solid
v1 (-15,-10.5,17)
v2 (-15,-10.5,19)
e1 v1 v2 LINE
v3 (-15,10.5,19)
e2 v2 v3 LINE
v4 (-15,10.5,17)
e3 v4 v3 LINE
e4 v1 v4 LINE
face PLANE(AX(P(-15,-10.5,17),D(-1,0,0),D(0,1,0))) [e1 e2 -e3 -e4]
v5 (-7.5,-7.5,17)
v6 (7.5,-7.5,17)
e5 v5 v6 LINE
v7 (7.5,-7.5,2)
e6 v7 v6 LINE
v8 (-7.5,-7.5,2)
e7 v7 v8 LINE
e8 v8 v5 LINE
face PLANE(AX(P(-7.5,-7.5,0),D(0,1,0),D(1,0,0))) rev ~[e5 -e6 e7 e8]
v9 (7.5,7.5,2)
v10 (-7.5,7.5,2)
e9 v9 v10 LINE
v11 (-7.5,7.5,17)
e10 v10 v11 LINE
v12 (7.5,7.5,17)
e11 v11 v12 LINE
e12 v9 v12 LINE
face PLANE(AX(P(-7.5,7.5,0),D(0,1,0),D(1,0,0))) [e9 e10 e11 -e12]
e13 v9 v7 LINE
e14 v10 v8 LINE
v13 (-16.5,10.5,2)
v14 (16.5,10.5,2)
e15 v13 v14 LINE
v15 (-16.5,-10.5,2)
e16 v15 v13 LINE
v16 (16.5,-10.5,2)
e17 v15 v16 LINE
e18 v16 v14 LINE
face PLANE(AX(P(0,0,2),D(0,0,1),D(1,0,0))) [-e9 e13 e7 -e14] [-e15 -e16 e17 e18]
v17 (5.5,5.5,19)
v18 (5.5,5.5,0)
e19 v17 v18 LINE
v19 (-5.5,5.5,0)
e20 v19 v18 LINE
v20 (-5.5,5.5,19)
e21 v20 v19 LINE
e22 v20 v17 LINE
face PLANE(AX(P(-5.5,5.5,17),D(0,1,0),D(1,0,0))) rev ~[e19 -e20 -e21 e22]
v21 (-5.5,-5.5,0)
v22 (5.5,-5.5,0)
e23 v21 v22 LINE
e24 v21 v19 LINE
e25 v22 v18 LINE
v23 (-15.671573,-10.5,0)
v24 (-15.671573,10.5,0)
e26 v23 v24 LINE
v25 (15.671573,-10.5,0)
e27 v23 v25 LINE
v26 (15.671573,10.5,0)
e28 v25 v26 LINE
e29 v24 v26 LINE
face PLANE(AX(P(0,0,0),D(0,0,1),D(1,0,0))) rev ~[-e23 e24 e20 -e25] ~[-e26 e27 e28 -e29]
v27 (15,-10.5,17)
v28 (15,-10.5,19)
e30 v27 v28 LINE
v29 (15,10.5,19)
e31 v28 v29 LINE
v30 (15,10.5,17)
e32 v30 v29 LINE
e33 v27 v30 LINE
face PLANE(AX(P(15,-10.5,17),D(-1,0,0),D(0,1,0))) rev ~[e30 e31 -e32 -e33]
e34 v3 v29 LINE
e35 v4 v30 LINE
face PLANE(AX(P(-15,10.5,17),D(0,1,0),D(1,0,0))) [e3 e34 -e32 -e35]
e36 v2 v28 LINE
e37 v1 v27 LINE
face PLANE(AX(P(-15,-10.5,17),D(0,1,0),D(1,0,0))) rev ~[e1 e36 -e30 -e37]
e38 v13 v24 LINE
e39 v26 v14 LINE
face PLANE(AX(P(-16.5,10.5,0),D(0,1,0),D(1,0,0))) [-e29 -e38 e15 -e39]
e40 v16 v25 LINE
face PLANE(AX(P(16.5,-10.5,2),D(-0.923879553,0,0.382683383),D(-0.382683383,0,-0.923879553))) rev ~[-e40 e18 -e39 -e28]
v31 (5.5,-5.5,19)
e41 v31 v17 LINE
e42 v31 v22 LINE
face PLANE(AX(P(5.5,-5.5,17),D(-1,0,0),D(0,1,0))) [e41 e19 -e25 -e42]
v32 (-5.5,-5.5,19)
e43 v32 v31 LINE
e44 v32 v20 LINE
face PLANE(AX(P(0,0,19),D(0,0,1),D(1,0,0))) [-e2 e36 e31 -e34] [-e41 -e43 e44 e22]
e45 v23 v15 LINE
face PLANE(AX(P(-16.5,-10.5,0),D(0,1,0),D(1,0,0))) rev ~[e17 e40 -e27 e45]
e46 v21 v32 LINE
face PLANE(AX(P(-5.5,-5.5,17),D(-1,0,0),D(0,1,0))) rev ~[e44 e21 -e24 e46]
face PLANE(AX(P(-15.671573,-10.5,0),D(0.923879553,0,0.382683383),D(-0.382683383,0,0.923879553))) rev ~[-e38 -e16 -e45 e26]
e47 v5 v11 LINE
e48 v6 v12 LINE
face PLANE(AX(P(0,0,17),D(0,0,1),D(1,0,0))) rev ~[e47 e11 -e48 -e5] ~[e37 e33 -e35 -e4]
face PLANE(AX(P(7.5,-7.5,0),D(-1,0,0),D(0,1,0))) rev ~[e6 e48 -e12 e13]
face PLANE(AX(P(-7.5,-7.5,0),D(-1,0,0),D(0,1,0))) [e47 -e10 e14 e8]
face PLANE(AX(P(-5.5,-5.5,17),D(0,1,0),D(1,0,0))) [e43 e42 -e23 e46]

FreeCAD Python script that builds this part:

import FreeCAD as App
import Part
import Sketcher

V = App.Vector
Q = App.Units.Quantity

doc = App.newDocument("Part")
body = doc.addObject("PartDesign::Body", "Body")

sketch1 = body.newObject("Sketcher::SketchObject", "Sketch")
sketch1.AttachmentSupport = (doc.getObject("XY_Plane"), [""])
sketch1.MapMode = "FlatFace"
sketch1.addGeometry(Part.LineSegment(V(-16, 10, 0), V(-16, -10, 0)), False)
sketch1.addGeometry(Part.LineSegment(V(-16, -10, 0), V(16, -10, 0)), False)
sketch1.addGeometry(Part.LineSegment(V(16, -10, 0), V(16, 10, 0)), False)
sketch1.addGeometry(Part.LineSegment(V(16, 10, 0), V(-16, 10, 0)), False)
sketch1.addGeometry(Part.LineSegment(V(6, -6, 0), V(-6, -6, 0)), False)
sketch1.addGeometry(Part.LineSegment(V(-6, -6, 0), V(-6, 6, 0)), False)
sketch1.addGeometry(Part.LineSegment(V(-6, 6, 0), V(6, 6, 0)), False)
sketch1.addGeometry(Part.LineSegment(V(6, 6, 0), V(6, -6, 0)), False)
sketch1.addConstraint(Sketcher.Constraint("Coincident", 0, 2, 1, 1))
sketch1.addConstraint(Sketcher.Constraint("Coincident", 1, 2, 2, 1))
sketch1.addConstraint(Sketcher.Constraint("Coincident", 2, 2, 3, 1))
sketch1.addConstraint(Sketcher.Constraint("Coincident", 3, 2, 0, 1))
sketch1.addConstraint(Sketcher.Constraint("Coincident", 4, 2, 5, 1))
sketch1.addConstraint(Sketcher.Constraint("Coincident", 5, 2, 6, 1))
sketch1.addConstraint(Sketcher.Constraint("Coincident", 6, 2, 7, 1))
sketch1.addConstraint(Sketcher.Constraint("Coincident", 7, 2, 4, 1))
sketch1.addConstraint(Sketcher.Constraint("Vertical", 0))
sketch1.addConstraint(Sketcher.Constraint("Horizontal", 1))
sketch1.addConstraint(Sketcher.Constraint("Vertical", 2))
sketch1.addConstraint(Sketcher.Constraint("Horizontal", 3))
sketch1.addConstraint(Sketcher.Constraint("Horizontal", 4))
sketch1.addConstraint(Sketcher.Constraint("Vertical", 5))
sketch1.addConstraint(Sketcher.Constraint("Horizontal", 6))
sketch1.addConstraint(Sketcher.Constraint("Vertical", 7))
sketch1.addConstraint(Sketcher.Constraint("Symmetric", 0, 2, 2, 2, -1, 1))
sketch1.addConstraint(Sketcher.Constraint("Symmetric", 4, 2, 6, 2, -1, 1))
sketch1.addConstraint(Sketcher.Constraint("Equal", 6, 5))
sketch1.addConstraint(Sketcher.Constraint("DistanceX", 1, 1, 1, 2, 33.0))
sketch1.addConstraint(Sketcher.Constraint("DistanceX", 4, 2, 4, 1, 11.0))
sketch1.addConstraint(Sketcher.Constraint("DistanceY", 0, 2, 0, 1, 21.0))
pad1 = body.newObject("PartDesign::Pad", "Pad")
pad1.Profile = sketch1
pad1.Length = 2

sketch2 = body.newObject("Sketcher::SketchObject", "Sketch001")
sketch2.AttachmentSupport = (doc.getObject("XY_Plane"), [""])
sketch2.MapMode = "FlatFace"
sketch2.addGeometry(Part.LineSegment(V(-8, 8, 0), V(-8, -8, 0)), False)
sketch2.addGeometry(Part.LineSegment(V(-8, -8, 0), V(8, -8, 0)), False)
sketch2.addGeometry(Part.LineSegment(V(8, -8, 0), V(8, 8, 0)), False)
sketch2.addGeometry(Part.LineSegment(V(8, 8, 0), V(-8, 8, 0)), False)
sketch2.addGeometry(Part.LineSegment(V(6, -6, 0), V(-6, -6, 0)), False)
sketch2.addGeometry(Part.LineSegment(V(-6, -6, 0), V(-6, 6, 0)), False)
sketch2.addGeometry(Part.LineSegment(V(-6, 6, 0), V(6, 6, 0)), False)
sketch2.addGeometry(Part.LineSegment(V(6, 6, 0), V(6, -6, 0)), False)
sketch2.addConstraint(Sketcher.Constraint("Coincident", 0, 2, 1, 1))
sketch2.addConstraint(Sketcher.Constraint("Coincident", 1, 2, 2, 1))
sketch2.addConstraint(Sketcher.Constraint("Coincident", 2, 2, 3, 1))
sketch2.addConstraint(Sketcher.Constraint("Coincident", 3, 2, 0, 1))
sketch2.addConstraint(Sketcher.Constraint("Coincident", 4, 2, 5, 1))
sketch2.addConstraint(Sketcher.Constraint("Coincident", 5, 2, 6, 1))
sketch2.addConstraint(Sketcher.Constraint("Coincident", 6, 2, 7, 1))
sketch2.addConstraint(Sketcher.Constraint("Coincident", 7, 2, 4, 1))
sketch2.addConstraint(Sketcher.Constraint("Vertical", 0))
sketch2.addConstraint(Sketcher.Constraint("Horizontal", 1))
sketch2.addConstraint(Sketcher.Constraint("Vertical", 2))
sketch2.addConstraint(Sketcher.Constraint("Horizontal", 3))
sketch2.addConstraint(Sketcher.Constraint("Horizontal", 4))
sketch2.addConstraint(Sketcher.Constraint("Vertical", 5))
sketch2.addConstraint(Sketcher.Constraint("Horizontal", 6))
sketch2.addConstraint(Sketcher.Constraint("Vertical", 7))
sketch2.addConstraint(Sketcher.Constraint("Symmetric", 0, 2, 2, 2, -1, 1))
sketch2.addConstraint(Sketcher.Constraint("Symmetric", 4, 2, 6, 2, -1, 1))
sketch2.addConstraint(Sketcher.Constraint("Equal", 3, 0))
sketch2.addConstraint(Sketcher.Constraint("Equal", 6, 5))
sketch2.addConstraint(Sketcher.Constraint("DistanceX", 1, 1, 1, 2, 15.0))
sketch2.addConstraint(Sketcher.Constraint("DistanceX", 4, 2, 4, 1, 11.0))
pad2 = body.newObject("PartDesign::Pad", "Pad001")
pad2.Profile = sketch2
pad2.Length = 17

sketch3 = body.newObject("Sketcher::SketchObject", "Sketch002")
sketch3.AttachmentSupport = (doc.getObject("XY_Plane"), [""])
sketch3.MapMode = "FlatFace"
sketch3.AttachmentOffset = App.Placement(V(0, 0, 17), App.Rotation())
sketch3.addGeometry(Part.LineSegment(V(-15, 10, 0), V(-15, -10, 0)), False)
sketch3.addGeometry(Part.LineSegment(V(-15, -10, 0), V(15, -10, 0)), False)
sketch3.addGeometry(Part.LineSegment(V(15, -10, 0), V(15, 10, 0)), False)
sketch3.addGeometry(Part.LineSegment(V(15, 10, 0), V(-15, 10, 0)), False)
sketch3.addGeometry(Part.LineSegment(V(6, -6, 0), V(-6, -6, 0)), False)
sketch3.addGeometry(Part.LineSegment(V(-6, -6, 0), V(-6, 6, 0)), False)
sketch3.addGeometry(Part.LineSegment(V(-6, 6, 0), V(6, 6, 0)), False)
sketch3.addGeometry(Part.LineSegment(V(6, 6, 0), V(6, -6, 0)), False)
sketch3.addConstraint(Sketcher.Constraint("Coincident", 0, 2, 1, 1))
sketch3.addConstraint(Sketcher.Constraint("Coincident", 1, 2, 2, 1))
sketch3.addConstraint(Sketcher.Constraint("Coincident", 2, 2, 3, 1))
sketch3.addConstraint(Sketcher.Constraint("Coincident", 3, 2, 0, 1))
sketch3.addConstraint(Sketcher.Constraint("Coincident", 4, 2, 5, 1))
sketch3.addConstraint(Sketcher.Constraint("Coincident", 5, 2, 6, 1))
sketch3.addConstraint(Sketcher.Constraint("Coincident", 6, 2, 7, 1))
sketch3.addConstraint(Sketcher.Constraint("Coincident", 7, 2, 4, 1))
sketch3.addConstraint(Sketcher.Constraint("Vertical", 0))
sketch3.addConstraint(Sketcher.Constraint("Horizontal", 1))
sketch3.addConstraint(Sketcher.Constraint("Vertical", 2))
sketch3.addConstraint(Sketcher.Constraint("Horizontal", 3))
sketch3.addConstraint(Sketcher.Constraint("Horizontal", 4))
sketch3.addConstraint(Sketcher.Constraint("Vertical", 5))
sketch3.addConstraint(Sketcher.Constraint("Horizontal", 6))
sketch3.addConstraint(Sketcher.Constraint("Vertical", 7))
sketch3.addConstraint(Sketcher.Constraint("Symmetric", 0, 2, 2, 2, -1, 1))
sketch3.addConstraint(Sketcher.Constraint("Symmetric", 4, 2, 6, 2, -1, 1))
sketch3.addConstraint(Sketcher.Constraint("Equal", 6, 5))
sketch3.addConstraint(Sketcher.Constraint("DistanceX", 1, 1, 1, 2, 30.0))
sketch3.addConstraint(Sketcher.Constraint("DistanceX", 4, 2, 4, 1, 11.0))
sketch3.addConstraint(Sketcher.Constraint("DistanceY", 0, 2, 0, 1, 21.0))
pad3 = body.newObject("PartDesign::Pad", "Pad002")
pad3.Profile = sketch3
pad3.Length = 2

sketch4 = body.newObject("Sketcher::SketchObject", "Sketch003")
sketch4.AttachmentSupport = (doc.getObject("XZ_Plane"), [""])
sketch4.MapMode = "FlatFace"
sketch4.AttachmentOffset = App.Placement(V(0, 0, 10.5), App.Rotation())
sketch4.addGeometry(Part.LineSegment(V(-15.7, 0, 0), V(-16.5, 2, 0)), False)
sketch4.addGeometry(Part.LineSegment(V(-16.5, 2, 0), V(-16.5, 0, 0)), False)
sketch4.addGeometry(Part.LineSegment(V(-16.5, 0, 0), V(-15.7, 0, 0)), False)
sketch4.addGeometry(Part.LineSegment(V(16.5, 0, 0), V(16.5, 2, 0)), False)
sketch4.addGeometry(Part.LineSegment(V(16.5, 2, 0), V(15.7, 0, 0)), False)
sketch4.addGeometry(Part.LineSegment(V(15.7, 0, 0), V(16.5, 0, 0)), False)
sketch4.addConstraint(Sketcher.Constraint("Coincident", 0, 2, 1, 1))
sketch4.addConstraint(Sketcher.Constraint("Coincident", 1, 2, 2, 1))
sketch4.addConstraint(Sketcher.Constraint("Coincident", 2, 2, 0, 1))
sketch4.addConstraint(Sketcher.Constraint("Coincident", 3, 2, 4, 1))
sketch4.addConstraint(Sketcher.Constraint("Coincident", 4, 2, 5, 1))
sketch4.addConstraint(Sketcher.Constraint("Coincident", 5, 2, 3, 1))
sketch4.addConstraint(Sketcher.Constraint("Vertical", 1))
sketch4.addConstraint(Sketcher.Constraint("Horizontal", 2))
sketch4.addConstraint(Sketcher.Constraint("Vertical", 3))
sketch4.addConstraint(Sketcher.Constraint("Horizontal", 5))
sketch4.addConstraint(Sketcher.Constraint("Symmetric", 2, 2, 4, 2, -1, 1))
sketch4.addConstraint(Sketcher.Constraint("Symmetric", 0, 2, 3, 2, -2))
sketch4.addConstraint(Sketcher.Constraint("PointOnObject", 1, 2, -1))
sketch4.addConstraint(Sketcher.Constraint("DistanceY", 1, 2, 1, 1, 2.0))
sketch4.addConstraint(Sketcher.Constraint("Angle", 0, Q("112.499997 deg")))
sketch4.addConstraint(Sketcher.Constraint("DistanceX", 0, 2, 3, 2, 33.0))
pocket1 = body.newObject("PartDesign::Pocket", "Pocket")
pocket1.Profile = sketch4
pocket1.Length = 25

doc.recompute()
